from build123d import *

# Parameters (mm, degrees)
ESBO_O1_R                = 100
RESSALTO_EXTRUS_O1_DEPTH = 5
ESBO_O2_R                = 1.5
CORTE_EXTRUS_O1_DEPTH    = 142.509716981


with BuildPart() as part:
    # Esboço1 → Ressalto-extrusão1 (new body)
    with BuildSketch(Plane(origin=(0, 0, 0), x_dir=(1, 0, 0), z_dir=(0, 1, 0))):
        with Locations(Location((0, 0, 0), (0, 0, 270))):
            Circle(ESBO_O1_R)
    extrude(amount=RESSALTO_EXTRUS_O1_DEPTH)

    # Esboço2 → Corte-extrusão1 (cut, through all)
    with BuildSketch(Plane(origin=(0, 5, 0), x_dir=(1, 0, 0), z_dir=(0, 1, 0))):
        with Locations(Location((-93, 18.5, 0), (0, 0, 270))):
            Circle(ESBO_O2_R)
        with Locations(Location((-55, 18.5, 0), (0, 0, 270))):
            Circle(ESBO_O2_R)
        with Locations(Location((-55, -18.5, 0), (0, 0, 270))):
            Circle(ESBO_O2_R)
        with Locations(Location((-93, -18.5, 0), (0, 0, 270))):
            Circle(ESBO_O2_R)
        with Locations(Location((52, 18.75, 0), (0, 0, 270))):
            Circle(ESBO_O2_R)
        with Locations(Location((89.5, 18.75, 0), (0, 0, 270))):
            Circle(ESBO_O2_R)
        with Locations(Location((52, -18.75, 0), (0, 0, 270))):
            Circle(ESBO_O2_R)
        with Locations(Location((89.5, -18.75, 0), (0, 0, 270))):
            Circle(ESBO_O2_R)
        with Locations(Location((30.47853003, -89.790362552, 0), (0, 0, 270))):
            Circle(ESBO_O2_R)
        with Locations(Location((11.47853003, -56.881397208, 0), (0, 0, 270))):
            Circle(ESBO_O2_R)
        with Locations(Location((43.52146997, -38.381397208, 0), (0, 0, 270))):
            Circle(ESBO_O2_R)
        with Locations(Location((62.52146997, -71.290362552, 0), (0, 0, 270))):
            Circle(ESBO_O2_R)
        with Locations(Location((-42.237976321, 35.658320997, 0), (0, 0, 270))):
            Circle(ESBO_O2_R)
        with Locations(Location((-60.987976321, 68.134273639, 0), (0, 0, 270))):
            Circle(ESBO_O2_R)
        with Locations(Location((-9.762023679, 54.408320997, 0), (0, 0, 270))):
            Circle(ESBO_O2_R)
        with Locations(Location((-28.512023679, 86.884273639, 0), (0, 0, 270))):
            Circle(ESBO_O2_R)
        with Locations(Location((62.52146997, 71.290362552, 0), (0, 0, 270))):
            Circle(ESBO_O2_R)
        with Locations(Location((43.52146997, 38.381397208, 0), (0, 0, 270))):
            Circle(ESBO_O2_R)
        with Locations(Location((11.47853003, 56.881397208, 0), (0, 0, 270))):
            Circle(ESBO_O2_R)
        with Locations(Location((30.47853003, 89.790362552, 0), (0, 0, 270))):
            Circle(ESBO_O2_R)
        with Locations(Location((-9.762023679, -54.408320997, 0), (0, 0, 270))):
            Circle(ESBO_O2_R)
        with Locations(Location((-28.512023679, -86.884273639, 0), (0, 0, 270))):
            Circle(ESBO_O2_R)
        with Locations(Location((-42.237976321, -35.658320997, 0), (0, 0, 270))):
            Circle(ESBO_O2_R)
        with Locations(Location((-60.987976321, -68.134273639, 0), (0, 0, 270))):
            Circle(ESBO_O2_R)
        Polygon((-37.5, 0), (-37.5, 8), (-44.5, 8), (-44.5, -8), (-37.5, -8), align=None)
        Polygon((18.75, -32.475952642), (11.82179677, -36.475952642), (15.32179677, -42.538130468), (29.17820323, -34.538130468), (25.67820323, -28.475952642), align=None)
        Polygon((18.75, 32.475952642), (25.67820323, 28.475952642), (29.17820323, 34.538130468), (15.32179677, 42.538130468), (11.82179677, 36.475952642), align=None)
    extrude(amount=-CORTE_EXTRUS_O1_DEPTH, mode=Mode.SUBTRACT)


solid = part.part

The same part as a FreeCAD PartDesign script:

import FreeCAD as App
import Part
import Sketcher
Q = App.Units.Quantity


def add_polygon(sketch, points):
    """Adds a closed chain of lines whose ends are joined by coincident constraints."""
    first, n = sketch.GeometryCount, len(points)
    for a, b in zip(points, points[1:] + points[:1]):
        sketch.addGeometry(Part.LineSegment(App.Vector(*a, 0), App.Vector(*b, 0)), False)
    for i in range(n):
        sketch.addConstraint(Sketcher.Constraint("Coincident", first + i, 2, first + (i + 1) % n, 1))

doc = App.newDocument("Part")
params = doc.addObject("Spreadsheet::Sheet", "Params")
for row, (alias, value) in enumerate([
    ("sketch1_diameter", "200 mm"),
    ("pad1_length", "5 mm"),
    ("sketch2_diameter", "3 mm"),
    ("sketch2_width", "7 mm"),
    ("sketch2_height", "16 mm"),
    ("sketch2_length", "7 mm"),
    ("sketch2_length2", "16 mm"),
], start=1):
    params.set(f"A{row}", alias)
    params.set(f"B{row}", "=" + value)
    params.setAlias(f"B{row}", alias)

body = doc.addObject("PartDesign::Body", "Body")

# Sketch on XZ plane
sketch1 = body.newObject("Sketcher::SketchObject", "Sketch")
sketch1.AttachmentSupport = (doc.getObject("XZ_Plane"), [""])
sketch1.MapMode = "FlatFace"
sketch1.addGeometry(Part.Circle(App.Vector(0, 0, 0), App.Vector(0, 0, 1), 100), False)
sketch1.addConstraint([
    Sketcher.Constraint("Coincident", 0, 3, -1, 1),
    Sketcher.Constraint("Diameter", 0, 200.0),
])
sketch1.setExpression("Constraints[1]", "Params.sketch1_diameter")
pad1 = body.newObject("PartDesign::Pad", "Pad")
pad1.Profile = sketch1
pad1.setExpression("Length", "Params.pad1_length")
pad1.Reversed = True

# Sketch on XZ plane
sketch2 = body.newObject("Sketcher::SketchObject", "Sketch001")
sketch2.AttachmentSupport = (doc.getObject("XZ_Plane"), [""])
sketch2.MapMode = "FlatFace"
sketch2.AttachmentOffset = App.Placement(App.Vector(0, 0, -5), App.Rotation())
sketch2.addGeometry(Part.Circle(App.Vector(-93, -18.5, 0), App.Vector(0, 0, 1), 1.5), False)  # 0
sketch2.addGeometry(Part.Circle(App.Vector(-55, -18.5, 0), App.Vector(0, 0, 1), 1.5), False)  # 1
sketch2.addGeometry(Part.Circle(App.Vector(-55, 18.5, 0), App.Vector(0, 0, 1), 1.5), False)  # 2
sketch2.addGeometry(Part.Circle(App.Vector(-93, 18.5, 0), App.Vector(0, 0, 1), 1.5), False)  # 3
sketch2.addGeometry(Part.Circle(App.Vector(52, -18.8, 0), App.Vector(0, 0, 1), 1.5), False)  # 4
sketch2.addGeometry(Part.Circle(App.Vector(89.5, -18.8, 0), App.Vector(0, 0, 1), 1.5), False)  # 5
sketch2.addGeometry(Part.Circle(App.Vector(52, 18.8, 0), App.Vector(0, 0, 1), 1.5), False)  # 6
sketch2.addGeometry(Part.Circle(App.Vector(89.5, 18.8, 0), App.Vector(0, 0, 1), 1.5), False)  # 7
sketch2.addGeometry(Part.Circle(App.Vector(30.5, 89.8, 0), App.Vector(0, 0, 1), 1.5), False)  # 8
sketch2.addGeometry(Part.Circle(App.Vector(11.5, 56.9, 0), App.Vector(0, 0, 1), 1.5), False)  # 9
sketch2.addGeometry(Part.Circle(App.Vector(43.5, 38.4, 0), App.Vector(0, 0, 1), 1.5), False)  # 10
sketch2.addGeometry(Part.Circle(App.Vector(62.5, 71.3, 0), App.Vector(0, 0, 1), 1.5), False)  # 11
sketch2.addGeometry(Part.Circle(App.Vector(-42.2, -35.7, 0), App.Vector(0, 0, 1), 1.5), False)  # 12
sketch2.addGeometry(Part.Circle(App.Vector(-61, -68.1, 0), App.Vector(0, 0, 1), 1.5), False)  # 13
sketch2.addGeometry(Part.Circle(App.Vector(-9.8, -54.4, 0), App.Vector(0, 0, 1), 1.5), False)  # 14
sketch2.addGeometry(Part.Circle(App.Vector(-28.5, -86.9, 0), App.Vector(0, 0, 1), 1.5), False)  # 15
sketch2.addGeometry(Part.Circle(App.Vector(62.5, -71.3, 0), App.Vector(0, 0, 1), 1.5), False)  # 16
sketch2.addGeometry(Part.Circle(App.Vector(43.5, -38.4, 0), App.Vector(0, 0, 1), 1.5), False)  # 17
sketch2.addGeometry(Part.Circle(App.Vector(11.5, -56.9, 0), App.Vector(0, 0, 1), 1.5), False)  # 18
sketch2.addGeometry(Part.Circle(App.Vector(30.5, -89.8, 0), App.Vector(0, 0, 1), 1.5), False)  # 19
sketch2.addGeometry(Part.Circle(App.Vector(-9.8, 54.4, 0), App.Vector(0, 0, 1), 1.5), False)  # 20
sketch2.addGeometry(Part.Circle(App.Vector(-28.5, 86.9, 0), App.Vector(0, 0, 1), 1.5), False)  # 21
sketch2.addGeometry(Part.Circle(App.Vector(-42.2, 35.7, 0), App.Vector(0, 0, 1), 1.5), False)  # 22
sketch2.addGeometry(Part.Circle(App.Vector(-61, 68.1, 0), App.Vector(0, 0, 1), 1.5), False)  # 23
add_polygon(sketch2, [(-37.5, -8), (-44.5, -8), (-44.5, 8), (-37.5, 8)])  # lines 24-27
add_polygon(sketch2, [(11.8, 36.5), (15.3, 42.5), (29.2, 34.5), (25.7, 28.5)])  # lines 28-31
add_polygon(sketch2, [(25.7, -28.5), (29.2, -34.5), (15.3, -42.5), (11.8, -36.5)])  # lines 32-35
sketch2.addConstraint([
    Sketcher.Constraint("Horizontal", 24),
    Sketcher.Constraint("Vertical", 25),
    Sketcher.Constraint("Horizontal", 26),
    Sketcher.Constraint("Vertical", 27),
    Sketcher.Constraint("Equal", 0, 1),
    Sketcher.Constraint("Equal", 1, 2),
    Sketcher.Constraint("Equal", 2, 3),
    Sketcher.Constraint("Equal", 3, 4),
    Sketcher.Constraint("Equal", 4, 5),
    Sketcher.Constraint("Equal", 5, 6),
    Sketcher.Constraint("Equal", 6, 7),
    Sketcher.Constraint("Equal", 7, 8),
    Sketcher.Constraint("Equal", 8, 9),
    Sketcher.Constraint("Equal", 9, 10),
    Sketcher.Constraint("Equal", 10, 11),
    Sketcher.Constraint("Equal", 11, 12),
    Sketcher.Constraint("Equal", 12, 13),
    Sketcher.Constraint("Equal", 13, 14),
    Sketcher.Constraint("Equal", 14, 15),
    Sketcher.Constraint("Equal", 15, 16),
    Sketcher.Constraint("Equal", 16, 17),
    Sketcher.Constraint("Equal", 17, 18),
    Sketcher.Constraint("Equal", 18, 19),
    Sketcher.Constraint("Equal", 19, 20),
    Sketcher.Constraint("Equal", 20, 21),
    Sketcher.Constraint("Equal", 21, 22),
    Sketcher.Constraint("Equal", 22, 23),
    Sketcher.Constraint("Symmetric", 1, 3, 2, 3, -1),
    Sketcher.Constraint("Symmetric", 0, 3, 3, 3, -1),
    Sketcher.Constraint("Symmetric", 4, 3, 6, 3, -1),
    Sketcher.Constraint("Symmetric", 5, 3, 7, 3, -1),
    Sketcher.Constraint("Symmetric", 11, 3, 16, 3, -1),
    Sketcher.Constraint("Symmetric", 10, 3, 17, 3, -1),
    Sketcher.Constraint("Symmetric", 9, 3, 18, 3, -1),
    Sketcher.Constraint("Symmetric", 8, 3, 19, 3, -1),
    Sketcher.Constraint("Symmetric", 14, 3, 20, 3, -1),
    Sketcher.Constraint("Symmetric", 15, 3, 21, 3, -1),
    Sketcher.Constraint("Symmetric", 12, 3, 22, 3, -1),
    Sketcher.Constraint("Symmetric", 13, 3, 23, 3, -1),
    Sketcher.Constraint("Symmetric", 29, 2, 32, 2, -1),
    Sketcher.Constraint("Symmetric", 28, 2, 33, 2, -1),
    Sketcher.Constraint("Symmetric", 31, 2, 34, 2, -1),
    Sketcher.Constraint("Symmetric", 30, 2, 35, 2, -1),
    Sketcher.Constraint("Perpendicular", 28, 29),
    Sketcher.Constraint("Perpendicular", 29, 30),
    Sketcher.Constraint("Perpendicular", 30, 31),
    Sketcher.Constraint("Horizontal", 0, 3, 1, 3),
    Sketcher.Constraint("Horizontal", 4, 3, 5, 3),
    Sketcher.Constraint("Diameter", 0, 3.0),
    Sketcher.Constraint("DistanceX", 24, 2, 24, 1, 7.0),
    Sketcher.Constraint("DistanceY", 25, 1, 25, 2, 16.0),
    Sketcher.Constraint("Angle", 28, Q("60 deg")),
    Sketcher.Constraint("Distance", 28, 7.0),
    Sketcher.Constraint("Distance", 29, 16.0),
    Sketcher.Constraint("DistanceX", 0, 3, -1, 1, 93.0),
    Sketcher.Constraint("DistanceX", 1, 3, -1, 1, 55.0),
    Sketcher.Constraint("DistanceX", -1, 1, 4, 3, 52.0),
    Sketcher.Constraint("DistanceY", 24, 2, -1, 1, 8.0),
    Sketcher.Constraint("DistanceY", 1, 3, 2, 3, 37.0),
    Sketcher.Constraint("DistanceX", 9, 3, 8, 3, 19.0),
    Sketcher.Constraint("DistanceX", 10, 3, 11, 3, 19.0),
    Sketcher.Constraint("DistanceX", -1, 1, 5, 3, 89.5),
    Sketcher.Constraint("DistanceX", 24, 2, -1, 1, 44.5),
    Sketcher.Constraint("DistanceY", 4, 3, 6, 3, 37.5),
    Sketcher.Constraint("DistanceY", 10, 3, 9, 3, 18.5),
    Sketcher.Constraint("DistanceY", 11, 3, 8, 3, 18.5),
    Sketcher.Constraint("DistanceX", 13, 3, 12, 3, 18.75),
    Sketcher.Constraint("DistanceY", 14, 3, 12, 3, 18.75),
    Sketcher.Constraint("DistanceY", 15, 3, 13, 3, 18.75),
    Sketcher.Constraint("DistanceX", 15, 3, 14, 3, 18.75),
    Sketcher.Constraint("DistanceX", -1, 1, 8, 3, 30.47853),
    Sketcher.Constraint("DistanceX", -1, 1, 10, 3, 43.52147),
    Sketcher.Constraint("DistanceY", 12, 3, -1, 1, 35.658321),
    Sketcher.Constraint("DistanceY", -1, 1, 28, 2, 42.53813),
    Sketcher.Constraint("DistanceY", 16, 3, 14, 3, 16.882042),
    Sketcher.Constraint("DistanceY", 15, 3, 16, 3, 15.593911),
    Sketcher.Constraint("DistanceX", 20, 3, 28, 2, 25.08382),
    Sketcher.Constraint("DistanceY", -1, 1, 9, 3, 56.881397),
    Sketcher.Constraint("DistanceX", 12, 3, -1, 1, 42.237976),
    Sketcher.Constraint("DistanceX", 14, 3, -1, 1, 9.762024),
])
sketch2.setExpression("Constraints[60]", "Params.sketch2_diameter")
sketch2.setExpression("Constraints[61]", "Params.sketch2_width")
sketch2.setExpression("Constraints[62]", "Params.sketch2_height")
sketch2.setExpression("Constraints[64]", "Params.sketch2_length")
sketch2.setExpression("Constraints[65]", "Params.sketch2_length2")
pocket1 = body.newObject("PartDesign::Pocket", "Pocket")
pocket1.Profile = sketch2
pocket1.Type = "ThroughAll"
pocket1.Reversed = True

doc.recompute()
